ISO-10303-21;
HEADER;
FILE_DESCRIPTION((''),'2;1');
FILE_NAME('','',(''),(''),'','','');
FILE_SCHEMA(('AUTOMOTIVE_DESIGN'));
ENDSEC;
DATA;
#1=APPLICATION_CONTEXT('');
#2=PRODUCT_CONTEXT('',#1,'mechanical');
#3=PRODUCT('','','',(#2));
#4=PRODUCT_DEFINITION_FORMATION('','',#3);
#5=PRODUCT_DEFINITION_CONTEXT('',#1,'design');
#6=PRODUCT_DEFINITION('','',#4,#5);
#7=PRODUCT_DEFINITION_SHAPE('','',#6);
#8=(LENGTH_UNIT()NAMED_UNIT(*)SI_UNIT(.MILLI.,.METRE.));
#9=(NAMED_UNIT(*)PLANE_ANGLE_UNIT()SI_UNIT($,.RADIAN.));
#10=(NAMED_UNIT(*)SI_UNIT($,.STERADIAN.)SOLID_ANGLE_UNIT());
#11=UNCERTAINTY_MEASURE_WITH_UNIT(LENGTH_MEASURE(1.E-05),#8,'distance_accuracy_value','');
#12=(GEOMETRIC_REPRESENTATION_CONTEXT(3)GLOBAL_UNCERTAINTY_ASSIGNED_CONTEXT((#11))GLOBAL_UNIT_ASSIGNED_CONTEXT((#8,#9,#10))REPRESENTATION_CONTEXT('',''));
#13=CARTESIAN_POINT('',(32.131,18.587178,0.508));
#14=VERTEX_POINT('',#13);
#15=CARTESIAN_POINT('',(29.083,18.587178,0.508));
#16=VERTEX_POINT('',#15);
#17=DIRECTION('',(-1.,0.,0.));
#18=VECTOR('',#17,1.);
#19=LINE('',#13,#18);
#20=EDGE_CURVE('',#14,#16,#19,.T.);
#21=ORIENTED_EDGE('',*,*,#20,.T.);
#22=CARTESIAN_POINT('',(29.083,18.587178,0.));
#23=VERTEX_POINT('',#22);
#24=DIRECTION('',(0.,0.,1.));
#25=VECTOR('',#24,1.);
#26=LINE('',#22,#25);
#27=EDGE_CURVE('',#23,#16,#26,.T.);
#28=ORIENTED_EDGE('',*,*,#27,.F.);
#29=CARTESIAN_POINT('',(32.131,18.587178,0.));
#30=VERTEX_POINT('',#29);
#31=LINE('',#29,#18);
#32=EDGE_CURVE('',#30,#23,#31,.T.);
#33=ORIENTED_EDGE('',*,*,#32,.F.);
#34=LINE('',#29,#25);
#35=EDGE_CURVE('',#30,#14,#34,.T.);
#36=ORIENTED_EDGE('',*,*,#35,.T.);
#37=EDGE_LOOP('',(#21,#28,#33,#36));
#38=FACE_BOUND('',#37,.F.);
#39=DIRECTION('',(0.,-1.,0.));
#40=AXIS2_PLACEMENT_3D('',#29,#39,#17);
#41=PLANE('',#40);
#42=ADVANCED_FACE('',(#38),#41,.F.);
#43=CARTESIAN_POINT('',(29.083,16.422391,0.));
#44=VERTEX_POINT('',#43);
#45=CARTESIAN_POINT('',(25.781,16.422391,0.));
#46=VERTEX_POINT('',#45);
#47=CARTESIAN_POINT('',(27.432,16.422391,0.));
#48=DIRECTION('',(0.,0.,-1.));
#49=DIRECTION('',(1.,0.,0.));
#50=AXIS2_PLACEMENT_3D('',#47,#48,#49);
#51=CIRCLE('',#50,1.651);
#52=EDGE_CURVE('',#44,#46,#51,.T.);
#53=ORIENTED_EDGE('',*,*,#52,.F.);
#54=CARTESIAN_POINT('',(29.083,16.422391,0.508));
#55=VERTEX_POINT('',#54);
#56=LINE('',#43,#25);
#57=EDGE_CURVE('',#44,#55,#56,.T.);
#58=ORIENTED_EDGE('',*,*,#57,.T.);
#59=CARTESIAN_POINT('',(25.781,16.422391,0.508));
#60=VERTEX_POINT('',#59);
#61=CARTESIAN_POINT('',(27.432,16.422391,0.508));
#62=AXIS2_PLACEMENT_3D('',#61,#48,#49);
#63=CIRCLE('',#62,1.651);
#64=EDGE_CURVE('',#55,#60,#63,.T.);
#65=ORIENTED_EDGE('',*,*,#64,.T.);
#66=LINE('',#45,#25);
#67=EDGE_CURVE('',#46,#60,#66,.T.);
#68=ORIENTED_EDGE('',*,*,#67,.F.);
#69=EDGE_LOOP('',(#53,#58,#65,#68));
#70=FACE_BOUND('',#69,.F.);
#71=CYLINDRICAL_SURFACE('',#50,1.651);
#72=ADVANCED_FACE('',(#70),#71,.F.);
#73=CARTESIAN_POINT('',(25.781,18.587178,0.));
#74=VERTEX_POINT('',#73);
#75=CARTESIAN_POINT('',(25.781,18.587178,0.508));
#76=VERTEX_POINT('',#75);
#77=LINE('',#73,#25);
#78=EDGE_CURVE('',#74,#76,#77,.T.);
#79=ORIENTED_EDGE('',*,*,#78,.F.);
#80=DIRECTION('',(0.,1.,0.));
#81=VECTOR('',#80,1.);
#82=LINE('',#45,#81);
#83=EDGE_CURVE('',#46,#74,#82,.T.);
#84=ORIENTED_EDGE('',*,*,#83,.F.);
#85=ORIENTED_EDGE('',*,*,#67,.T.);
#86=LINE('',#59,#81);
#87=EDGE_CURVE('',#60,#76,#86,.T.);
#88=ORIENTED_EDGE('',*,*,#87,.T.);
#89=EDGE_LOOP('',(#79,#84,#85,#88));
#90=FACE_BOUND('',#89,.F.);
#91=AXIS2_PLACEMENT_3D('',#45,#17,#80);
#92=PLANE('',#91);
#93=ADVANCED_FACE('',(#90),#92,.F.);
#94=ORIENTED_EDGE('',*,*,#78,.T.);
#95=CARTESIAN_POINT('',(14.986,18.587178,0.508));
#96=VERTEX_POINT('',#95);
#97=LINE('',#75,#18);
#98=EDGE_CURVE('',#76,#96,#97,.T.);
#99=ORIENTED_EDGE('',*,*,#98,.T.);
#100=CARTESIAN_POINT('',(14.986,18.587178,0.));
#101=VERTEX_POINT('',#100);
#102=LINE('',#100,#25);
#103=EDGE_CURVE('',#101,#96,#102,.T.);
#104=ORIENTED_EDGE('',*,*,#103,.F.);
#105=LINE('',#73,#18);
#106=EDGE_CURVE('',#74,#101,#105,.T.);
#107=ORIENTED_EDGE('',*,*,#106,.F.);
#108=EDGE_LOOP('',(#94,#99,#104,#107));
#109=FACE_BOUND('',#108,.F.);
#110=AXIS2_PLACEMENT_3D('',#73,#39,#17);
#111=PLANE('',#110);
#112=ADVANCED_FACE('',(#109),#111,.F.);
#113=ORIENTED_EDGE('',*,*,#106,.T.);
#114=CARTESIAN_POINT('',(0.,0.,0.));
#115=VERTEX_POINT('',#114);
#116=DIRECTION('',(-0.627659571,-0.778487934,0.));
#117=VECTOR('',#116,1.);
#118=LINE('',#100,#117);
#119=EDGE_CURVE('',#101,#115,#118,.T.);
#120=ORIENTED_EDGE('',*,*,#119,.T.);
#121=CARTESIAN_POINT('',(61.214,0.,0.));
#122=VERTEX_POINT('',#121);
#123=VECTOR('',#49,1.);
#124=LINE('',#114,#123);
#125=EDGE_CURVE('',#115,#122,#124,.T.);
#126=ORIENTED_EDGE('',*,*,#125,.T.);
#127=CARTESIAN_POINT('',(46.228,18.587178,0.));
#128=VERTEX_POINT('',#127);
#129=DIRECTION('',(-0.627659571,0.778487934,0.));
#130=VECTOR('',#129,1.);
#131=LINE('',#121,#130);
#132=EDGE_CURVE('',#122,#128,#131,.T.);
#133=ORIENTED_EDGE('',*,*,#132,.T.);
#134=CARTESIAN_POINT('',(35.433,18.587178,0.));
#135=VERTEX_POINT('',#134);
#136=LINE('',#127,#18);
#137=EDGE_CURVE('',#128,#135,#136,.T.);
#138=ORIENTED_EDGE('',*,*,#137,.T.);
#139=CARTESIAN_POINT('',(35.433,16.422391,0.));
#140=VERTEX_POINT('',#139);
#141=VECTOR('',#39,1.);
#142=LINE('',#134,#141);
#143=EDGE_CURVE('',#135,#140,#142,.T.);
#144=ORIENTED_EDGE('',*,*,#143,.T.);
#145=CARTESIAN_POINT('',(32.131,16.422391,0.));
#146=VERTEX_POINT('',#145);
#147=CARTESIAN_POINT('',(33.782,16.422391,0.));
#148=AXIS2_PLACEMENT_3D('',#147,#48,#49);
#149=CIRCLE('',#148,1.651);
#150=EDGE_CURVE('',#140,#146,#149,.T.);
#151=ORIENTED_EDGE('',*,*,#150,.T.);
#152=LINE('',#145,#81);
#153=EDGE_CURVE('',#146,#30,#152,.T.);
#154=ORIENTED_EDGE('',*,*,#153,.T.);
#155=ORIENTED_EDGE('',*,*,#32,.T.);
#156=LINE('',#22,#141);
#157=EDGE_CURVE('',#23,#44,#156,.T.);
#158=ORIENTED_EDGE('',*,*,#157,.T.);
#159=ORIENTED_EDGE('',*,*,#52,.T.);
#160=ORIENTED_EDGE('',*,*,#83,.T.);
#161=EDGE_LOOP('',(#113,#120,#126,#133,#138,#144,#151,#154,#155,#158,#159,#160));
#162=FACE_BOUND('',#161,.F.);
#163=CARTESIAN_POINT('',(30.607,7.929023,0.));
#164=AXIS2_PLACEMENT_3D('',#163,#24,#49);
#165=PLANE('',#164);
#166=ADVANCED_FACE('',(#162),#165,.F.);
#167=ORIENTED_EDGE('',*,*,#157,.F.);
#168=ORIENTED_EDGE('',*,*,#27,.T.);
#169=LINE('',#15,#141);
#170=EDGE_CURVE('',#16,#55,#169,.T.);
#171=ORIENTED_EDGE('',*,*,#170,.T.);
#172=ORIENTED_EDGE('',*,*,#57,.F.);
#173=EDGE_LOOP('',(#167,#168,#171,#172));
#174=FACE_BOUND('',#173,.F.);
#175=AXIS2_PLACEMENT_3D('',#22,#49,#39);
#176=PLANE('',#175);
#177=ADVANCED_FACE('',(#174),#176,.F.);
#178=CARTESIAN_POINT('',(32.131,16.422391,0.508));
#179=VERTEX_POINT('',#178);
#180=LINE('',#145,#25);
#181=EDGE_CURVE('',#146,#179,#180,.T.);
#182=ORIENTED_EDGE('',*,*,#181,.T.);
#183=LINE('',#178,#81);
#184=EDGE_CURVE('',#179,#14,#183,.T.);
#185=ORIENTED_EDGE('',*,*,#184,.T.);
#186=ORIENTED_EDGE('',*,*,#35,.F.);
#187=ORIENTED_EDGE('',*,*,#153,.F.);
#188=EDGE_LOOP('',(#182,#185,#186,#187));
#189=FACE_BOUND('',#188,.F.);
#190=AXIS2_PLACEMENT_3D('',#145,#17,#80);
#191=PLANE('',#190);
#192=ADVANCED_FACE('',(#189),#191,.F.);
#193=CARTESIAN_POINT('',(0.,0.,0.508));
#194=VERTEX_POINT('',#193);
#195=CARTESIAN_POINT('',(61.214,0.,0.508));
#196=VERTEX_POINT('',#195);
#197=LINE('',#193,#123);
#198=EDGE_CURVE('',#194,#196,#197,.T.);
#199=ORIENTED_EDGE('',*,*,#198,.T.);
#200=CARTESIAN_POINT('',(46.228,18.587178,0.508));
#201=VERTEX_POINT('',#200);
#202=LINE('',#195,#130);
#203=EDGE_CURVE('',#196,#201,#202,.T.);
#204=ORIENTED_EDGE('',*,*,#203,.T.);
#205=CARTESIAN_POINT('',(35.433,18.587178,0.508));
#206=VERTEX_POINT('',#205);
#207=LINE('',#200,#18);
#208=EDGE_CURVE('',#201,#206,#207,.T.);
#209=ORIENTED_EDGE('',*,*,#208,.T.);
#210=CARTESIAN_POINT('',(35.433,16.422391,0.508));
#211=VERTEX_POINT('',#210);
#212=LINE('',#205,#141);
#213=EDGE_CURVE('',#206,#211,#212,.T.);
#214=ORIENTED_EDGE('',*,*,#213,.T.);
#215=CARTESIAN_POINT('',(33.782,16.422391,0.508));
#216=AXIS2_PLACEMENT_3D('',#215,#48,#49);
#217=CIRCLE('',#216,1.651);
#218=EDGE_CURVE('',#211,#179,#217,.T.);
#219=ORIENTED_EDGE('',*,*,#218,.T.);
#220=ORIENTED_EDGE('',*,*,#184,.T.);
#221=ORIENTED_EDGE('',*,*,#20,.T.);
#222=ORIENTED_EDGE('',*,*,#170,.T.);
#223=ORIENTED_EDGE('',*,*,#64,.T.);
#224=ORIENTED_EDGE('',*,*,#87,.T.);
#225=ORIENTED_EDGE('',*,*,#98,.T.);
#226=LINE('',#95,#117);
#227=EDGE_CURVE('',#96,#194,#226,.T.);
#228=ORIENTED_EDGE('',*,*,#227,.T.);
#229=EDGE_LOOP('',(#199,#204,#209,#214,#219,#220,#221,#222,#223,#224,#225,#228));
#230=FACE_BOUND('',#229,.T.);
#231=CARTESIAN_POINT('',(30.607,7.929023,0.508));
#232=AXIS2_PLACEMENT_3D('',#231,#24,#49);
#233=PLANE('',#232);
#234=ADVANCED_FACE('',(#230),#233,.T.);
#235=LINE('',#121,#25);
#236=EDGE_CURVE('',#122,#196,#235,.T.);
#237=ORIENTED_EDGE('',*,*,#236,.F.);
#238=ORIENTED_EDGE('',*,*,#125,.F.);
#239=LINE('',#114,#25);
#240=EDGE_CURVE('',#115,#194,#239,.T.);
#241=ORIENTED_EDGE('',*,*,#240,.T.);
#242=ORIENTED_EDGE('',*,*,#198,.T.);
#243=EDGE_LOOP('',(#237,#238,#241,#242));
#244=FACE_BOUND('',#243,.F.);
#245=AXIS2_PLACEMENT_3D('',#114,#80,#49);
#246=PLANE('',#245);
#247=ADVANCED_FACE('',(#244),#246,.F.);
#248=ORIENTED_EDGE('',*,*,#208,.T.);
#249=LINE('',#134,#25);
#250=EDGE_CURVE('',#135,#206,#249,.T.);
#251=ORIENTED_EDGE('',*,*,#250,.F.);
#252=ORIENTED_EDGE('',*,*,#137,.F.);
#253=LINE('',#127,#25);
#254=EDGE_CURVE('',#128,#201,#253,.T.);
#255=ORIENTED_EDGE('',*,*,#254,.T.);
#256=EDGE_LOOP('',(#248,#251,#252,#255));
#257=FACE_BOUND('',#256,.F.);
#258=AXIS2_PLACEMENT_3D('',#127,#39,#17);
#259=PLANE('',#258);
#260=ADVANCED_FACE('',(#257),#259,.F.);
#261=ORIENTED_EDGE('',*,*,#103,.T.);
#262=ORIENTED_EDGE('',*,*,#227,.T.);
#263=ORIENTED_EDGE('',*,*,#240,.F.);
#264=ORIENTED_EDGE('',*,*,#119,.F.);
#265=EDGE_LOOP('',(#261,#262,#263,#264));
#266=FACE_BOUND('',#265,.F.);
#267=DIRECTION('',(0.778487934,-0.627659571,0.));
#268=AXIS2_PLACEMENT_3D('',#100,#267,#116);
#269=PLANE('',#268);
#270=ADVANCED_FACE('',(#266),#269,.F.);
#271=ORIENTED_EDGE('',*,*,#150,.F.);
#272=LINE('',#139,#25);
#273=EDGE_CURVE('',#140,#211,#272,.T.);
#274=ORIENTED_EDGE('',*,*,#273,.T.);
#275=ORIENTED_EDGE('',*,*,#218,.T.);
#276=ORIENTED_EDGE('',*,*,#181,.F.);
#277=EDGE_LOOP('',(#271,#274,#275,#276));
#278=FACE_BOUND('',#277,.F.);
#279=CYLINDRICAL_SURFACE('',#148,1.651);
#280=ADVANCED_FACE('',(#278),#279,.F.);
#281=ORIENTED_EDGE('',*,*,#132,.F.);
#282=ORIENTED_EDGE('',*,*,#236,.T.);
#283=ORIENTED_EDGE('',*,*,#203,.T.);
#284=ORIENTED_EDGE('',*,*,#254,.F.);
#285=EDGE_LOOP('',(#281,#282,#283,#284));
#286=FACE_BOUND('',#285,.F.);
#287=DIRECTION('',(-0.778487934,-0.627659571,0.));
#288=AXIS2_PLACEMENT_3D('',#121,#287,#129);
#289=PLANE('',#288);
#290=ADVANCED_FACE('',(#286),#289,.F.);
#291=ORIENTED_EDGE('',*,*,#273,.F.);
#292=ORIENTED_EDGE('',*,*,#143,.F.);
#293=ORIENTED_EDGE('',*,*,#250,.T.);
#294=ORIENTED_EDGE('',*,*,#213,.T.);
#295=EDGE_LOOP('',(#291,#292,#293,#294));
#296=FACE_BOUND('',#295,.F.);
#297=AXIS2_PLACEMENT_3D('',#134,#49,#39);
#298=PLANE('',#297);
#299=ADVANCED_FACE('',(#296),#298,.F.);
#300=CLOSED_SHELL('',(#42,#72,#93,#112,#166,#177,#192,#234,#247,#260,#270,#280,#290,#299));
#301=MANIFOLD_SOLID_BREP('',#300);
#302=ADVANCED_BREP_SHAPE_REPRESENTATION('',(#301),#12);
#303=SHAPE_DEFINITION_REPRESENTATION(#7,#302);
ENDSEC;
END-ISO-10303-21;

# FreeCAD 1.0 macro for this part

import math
import FreeCAD as App
import Part
import Sketcher
Q = App.Units.Quantity

doc = App.newDocument("Part")
params = doc.addObject("Spreadsheet::Sheet", "Params")
for row, (alias, value) in enumerate([
    ("sketch1_radius", "0.065 in"),
    ("sketch1_width", "2.41 in"),
    ("sketch1_width2", "0.12 in"),
    ("sketch1_length", "0.94 in"),
    ("sketch1_width3", "0.425 in"),
    ("pad1_length", "0.02 in"),
], start=1):
    params.set(f"A{row}", alias)
    params.set(f"B{row}", "=" + value)
    params.setAlias(f"B{row}", alias)

body = doc.addObject("PartDesign::Body", "Body")

sketch1 = doc.addObject("Sketcher::SketchObject", "Sketch")
body.addObject(sketch1)
sketch1.AttachmentSupport = (doc.XY_Plane, [""])
sketch1.MapMode = "FlatFace"
sketch1.addGeometry(Part.LineSegment(App.Vector(15, 18.6, 0), App.Vector(0, 0, 0)), False)
sketch1.addGeometry(Part.LineSegment(App.Vector(0, 0, 0), App.Vector(61.2, 0, 0)), False)
sketch1.addGeometry(Part.LineSegment(App.Vector(61.2, 0, 0), App.Vector(46.2, 18.6, 0)), False)
sketch1.addGeometry(Part.LineSegment(App.Vector(46.2, 18.6, 0), App.Vector(35.4, 18.6, 0)), False)
sketch1.addGeometry(Part.LineSegment(App.Vector(35.4, 18.6, 0), App.Vector(35.4, 16.4, 0)), False)
sketch1.addGeometry(Part.ArcOfCircle(Part.Circle(App.Vector(33.8, 16.4, 0), App.Vector(0, 0, 1), 1.7), math.radians(180), math.radians(360)), False)
sketch1.addGeometry(Part.LineSegment(App.Vector(32.1, 16.4, 0), App.Vector(32.1, 18.6, 0)), False)
sketch1.addGeometry(Part.LineSegment(App.Vector(32.1, 18.6, 0), App.Vector(29.1, 18.6, 0)), False)
sketch1.addGeometry(Part.LineSegment(App.Vector(29.1, 18.6, 0), App.Vector(29.1, 16.4, 0)), False)
sketch1.addGeometry(Part.ArcOfCircle(Part.Circle(App.Vector(27.4, 16.4, 0), App.Vector(0, 0, 1), 1.7), math.radians(180), math.radians(360)), False)
sketch1.addGeometry(Part.LineSegment(App.Vector(25.8, 16.4, 0), App.Vector(25.8, 18.6, 0)), False)
sketch1.addGeometry(Part.LineSegment(App.Vector(25.8, 18.6, 0), App.Vector(15, 18.6, 0)), False)
sketch1.addConstraint(Sketcher.Constraint("Coincident", 0, 2, 1, 1))
sketch1.addConstraint(Sketcher.Constraint("Coincident", 1, 2, 2, 1))
sketch1.addConstraint(Sketcher.Constraint("Coincident", 2, 2, 3, 1))
sketch1.addConstraint(Sketcher.Constraint("Coincident", 3, 2, 4, 1))
sketch1.addConstraint(Sketcher.Constraint("Tangent", 4, 2, 5, 2))
sketch1.addConstraint(Sketcher.Constraint("Tangent", 5, 1, 6, 1))
sketch1.addConstraint(Sketcher.Constraint("Coincident", 6, 2, 7, 1))
sketch1.addConstraint(Sketcher.Constraint("Coincident", 7, 2, 8, 1))
sketch1.addConstraint(Sketcher.Constraint("Tangent", 8, 2, 9, 2))
sketch1.addConstraint(Sketcher.Constraint("Tangent", 9, 1, 10, 1))
sketch1.addConstraint(Sketcher.Constraint("Coincident", 10, 2, 11, 1))
sketch1.addConstraint(Sketcher.Constraint("Coincident", 11, 2, 0, 1))
sketch1.addConstraint(Sketcher.Constraint("Horizontal", 1))
sketch1.addConstraint(Sketcher.Constraint("Horizontal", 3))
sketch1.addConstraint(Sketcher.Constraint("Vertical", 4))
sketch1.addConstraint(Sketcher.Constraint("Vertical", 6))
sketch1.addConstraint(Sketcher.Constraint("Horizontal", 7))
sketch1.addConstraint(Sketcher.Constraint("Vertical", 8))
sketch1.addConstraint(Sketcher.Constraint("Vertical", 10))
sketch1.addConstraint(Sketcher.Constraint("Horizontal", 11))
sketch1.addConstraint(Sketcher.Constraint("Coincident", 0, 2, -1, 1))
sketch1.addConstraint(Sketcher.Constraint("Equal", 5, 9))
sketch1.addConstraint(Sketcher.Constraint("Horizontal", 5, 3, 9, 3))
sketch1.addConstraint(Sketcher.Constraint("Horizontal", 3, 2, 6, 2))
sketch1.addConstraint(Sketcher.Constraint("Horizontal", 7, 2, 10, 2))
sketch1.addConstraint(Sketcher.Constraint("Equal", 3, 11))
sketch1.addConstraint(Sketcher.Constraint("Equal", 0, 2))
sketch1.addConstraint(Sketcher.Constraint("Radius", 5, Q("0.065 in")))
sketch1.addConstraint(Sketcher.Constraint("DistanceX", 1, 1, 1, 2, Q("2.41 in")))
sketch1.addConstraint(Sketcher.Constraint("DistanceX", 7, 2, 7, 1, Q("0.12 in")))
sketch1.addConstraint(Sketcher.Constraint("Distance", 0, Q("0.94 in")))
sketch1.addConstraint(Sketcher.Constraint("DistanceX", 3, 2, 3, 1, Q("0.425 in")))
sketch1.addConstraint(Sketcher.Constraint("DistanceY", 4, 2, 4, 1, 2.164787))
sketch1.setExpression("Constraints[27]", "Params.sketch1_radius")
sketch1.setExpression("Constraints[28]", "Params.sketch1_width")
sketch1.setExpression("Constraints[29]", "Params.sketch1_width2")
sketch1.setExpression("Constraints[30]", "Params.sketch1_length")
sketch1.setExpression("Constraints[31]", "Params.sketch1_width3")
pad1 = doc.addObject("PartDesign::Pad", "Pad")
body.addObject(pad1)
pad1.Profile = sketch1
pad1.setExpression("Length", "Params.pad1_length")

doc.recompute()
